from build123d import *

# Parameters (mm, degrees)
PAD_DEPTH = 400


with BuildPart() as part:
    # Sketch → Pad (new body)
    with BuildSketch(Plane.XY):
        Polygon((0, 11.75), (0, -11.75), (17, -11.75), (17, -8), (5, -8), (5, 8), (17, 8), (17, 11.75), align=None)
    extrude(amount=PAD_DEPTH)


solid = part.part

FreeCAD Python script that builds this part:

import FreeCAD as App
import Part
import Sketcher
Q = App.Units.Quantity

doc = App.newDocument("Part")
body = doc.addObject("PartDesign::Body", "Body")

# Sketch on XY plane
sketch1 = body.newObject("Sketcher::SketchObject", "Sketch")
sketch1.AttachmentSupport = (doc.getObject("XY_Plane"), [""])
sketch1.MapMode = "FlatFace"
sketch1.addGeometry([
    Part.LineSegment(App.Vector(0, 11.8, 0), App.Vector(0, -11.8, 0)),  # 0
    Part.LineSegment(App.Vector(0, -11.8, 0), App.Vector(17, -11.8, 0)),  # 1
    Part.LineSegment(App.Vector(17, -11.8, 0), App.Vector(17, -8, 0)),  # 2
    Part.LineSegment(App.Vector(17, -8, 0), App.Vector(5, -8, 0)),  # 3
    Part.LineSegment(App.Vector(5, -8, 0), App.Vector(5, 8, 0)),  # 4
    Part.LineSegment(App.Vector(5, 8, 0), App.Vector(17, 8, 0)),  # 5
    Part.LineSegment(App.Vector(17, 8, 0), App.Vector(17, 11.8, 0)),  # 6
    Part.LineSegment(App.Vector(17, 11.8, 0), App.Vector(0, 11.8, 0)),  # 7
], False)
sketch1.addConstraint([
    Sketcher.Constraint("Coincident", 0, 2, 1, 1),
    Sketcher.Constraint("Coincident", 1, 2, 2, 1),
    Sketcher.Constraint("Coincident", 2, 2, 3, 1),
    Sketcher.Constraint("Coincident", 3, 2, 4, 1),
    Sketcher.Constraint("Coincident", 4, 2, 5, 1),
    Sketcher.Constraint("Coincident", 5, 2, 6, 1),
    Sketcher.Constraint("Coincident", 6, 2, 7, 1),
    Sketcher.Constraint("Coincident", 7, 2, 0, 1),
    Sketcher.Constraint("Vertical", 0),
    Sketcher.Constraint("Horizontal", 1),
    Sketcher.Constraint("Vertical", 2),
    Sketcher.Constraint("Horizontal", 3),
    Sketcher.Constraint("Vertical", 4),
    Sketcher.Constraint("Horizontal", 5),
    Sketcher.Constraint("Vertical", 6),
    Sketcher.Constraint("Horizontal", 7),
    Sketcher.Constraint("Symmetric", 0, 2, 7, 2, -1, 1),
    Sketcher.Constraint("Symmetric", 2, 2, 5, 2, -1),
    Sketcher.Constraint("DistanceX", 1, 1, 1, 2, Q("17 mm")),
    Sketcher.Constraint("DistanceX", 3, 2, 3, 1, Q("12 mm")),
    Sketcher.Constraint("DistanceY", 4, 1, 4, 2, Q("16 mm")),
    Sketcher.Constraint("DistanceY", 0, 2, 0, 1, Q("23.5 mm")),
])
pad1 = body.newObject("PartDesign::Pad", "Pad")
pad1.Profile = sketch1
pad1.Length = 400

doc.recompute()
